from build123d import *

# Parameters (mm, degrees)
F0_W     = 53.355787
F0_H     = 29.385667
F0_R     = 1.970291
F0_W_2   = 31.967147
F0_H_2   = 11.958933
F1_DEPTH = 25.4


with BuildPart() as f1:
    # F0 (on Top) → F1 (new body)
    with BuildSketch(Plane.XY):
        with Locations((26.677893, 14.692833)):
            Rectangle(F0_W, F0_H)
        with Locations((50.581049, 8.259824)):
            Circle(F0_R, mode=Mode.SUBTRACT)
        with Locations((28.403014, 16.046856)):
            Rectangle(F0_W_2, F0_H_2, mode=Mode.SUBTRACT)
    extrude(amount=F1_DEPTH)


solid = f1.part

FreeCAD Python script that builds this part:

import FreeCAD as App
import Part
import Sketcher
from FreeCAD import Vector
Q = App.Units.Quantity


def add_polygon(sketch, points):
    """Adds a closed chain of lines whose ends are joined by coincident constraints."""
    first, n = sketch.GeometryCount, len(points)
    for a, b in zip(points, points[1:] + points[:1]):
        sketch.addGeometry(Part.LineSegment(App.Vector(*a, 0), App.Vector(*b, 0)), False)
    for i in range(n):
        sketch.addConstraint(Sketcher.Constraint("Coincident", first + i, 2, first + (i + 1) % n, 1))

doc = App.newDocument("Part")
body = doc.addObject("PartDesign::Body", "Body")

sketch1 = doc.addObject("Sketcher::SketchObject", "Sketch")
body.addObject(sketch1)
sketch1.AttachmentSupport = (doc.XY_Plane, [""])
sketch1.MapMode = "FlatFace"
add_polygon(sketch1, [(0, 29.4), (0, 0), (53.4, 0), (53.4, 29.4)])
sketch1.addGeometry(Part.Circle(Vector(50.6, 8.3, 0), Vector(0, 0, 1), 2), False)
add_polygon(sketch1, [(44.4, 10.1), (12.4, 10.1), (12.4, 22), (44.4, 22)])
sketch1.addConstraint(Sketcher.Constraint("Vertical", 0))
sketch1.addConstraint(Sketcher.Constraint("Horizontal", 1))
sketch1.addConstraint(Sketcher.Constraint("Vertical", 2))
sketch1.addConstraint(Sketcher.Constraint("Horizontal", 3))
sketch1.addConstraint(Sketcher.Constraint("Horizontal", 5))
sketch1.addConstraint(Sketcher.Constraint("Vertical", 6))
sketch1.addConstraint(Sketcher.Constraint("Horizontal", 7))
sketch1.addConstraint(Sketcher.Constraint("Vertical", 8))
sketch1.addConstraint(Sketcher.Constraint("Coincident", 0, 2, -1, 1))
sketch1.addConstraint(Sketcher.Constraint("Diameter", 4, Q("3.940582 mm")))
sketch1.addConstraint(Sketcher.Constraint("DistanceY", 4, 3, 6, 2, Q("13.766498 mm")))
sketch1.addConstraint(Sketcher.Constraint("DistanceX", 7, 2, 2, 2, Q("8.969199 mm")))
sketch1.addConstraint(Sketcher.Constraint("DistanceX", 1, 1, 1, 2, Q("53.355787 mm")))
sketch1.addConstraint(Sketcher.Constraint("DistanceX", 5, 2, 5, 1, Q("31.967147 mm")))
sketch1.addConstraint(Sketcher.Constraint("DistanceY", 0, 2, 0, 1, Q("29.385667 mm")))
sketch1.addConstraint(Sketcher.Constraint("DistanceY", 6, 1, 6, 2, Q("11.958933 mm")))
sketch1.addConstraint(Sketcher.Constraint("DistanceX", -1, 1, 4, 3, Q("50.581049 mm")))
sketch1.addConstraint(Sketcher.Constraint("DistanceY", -1, 1, 5, 2, Q("10.06739 mm")))
pad1 = doc.addObject("PartDesign::Pad", "Pad")
body.addObject(pad1)
pad1.Profile = sketch1
pad1.Length = Q("1 in")

doc.recompute()
